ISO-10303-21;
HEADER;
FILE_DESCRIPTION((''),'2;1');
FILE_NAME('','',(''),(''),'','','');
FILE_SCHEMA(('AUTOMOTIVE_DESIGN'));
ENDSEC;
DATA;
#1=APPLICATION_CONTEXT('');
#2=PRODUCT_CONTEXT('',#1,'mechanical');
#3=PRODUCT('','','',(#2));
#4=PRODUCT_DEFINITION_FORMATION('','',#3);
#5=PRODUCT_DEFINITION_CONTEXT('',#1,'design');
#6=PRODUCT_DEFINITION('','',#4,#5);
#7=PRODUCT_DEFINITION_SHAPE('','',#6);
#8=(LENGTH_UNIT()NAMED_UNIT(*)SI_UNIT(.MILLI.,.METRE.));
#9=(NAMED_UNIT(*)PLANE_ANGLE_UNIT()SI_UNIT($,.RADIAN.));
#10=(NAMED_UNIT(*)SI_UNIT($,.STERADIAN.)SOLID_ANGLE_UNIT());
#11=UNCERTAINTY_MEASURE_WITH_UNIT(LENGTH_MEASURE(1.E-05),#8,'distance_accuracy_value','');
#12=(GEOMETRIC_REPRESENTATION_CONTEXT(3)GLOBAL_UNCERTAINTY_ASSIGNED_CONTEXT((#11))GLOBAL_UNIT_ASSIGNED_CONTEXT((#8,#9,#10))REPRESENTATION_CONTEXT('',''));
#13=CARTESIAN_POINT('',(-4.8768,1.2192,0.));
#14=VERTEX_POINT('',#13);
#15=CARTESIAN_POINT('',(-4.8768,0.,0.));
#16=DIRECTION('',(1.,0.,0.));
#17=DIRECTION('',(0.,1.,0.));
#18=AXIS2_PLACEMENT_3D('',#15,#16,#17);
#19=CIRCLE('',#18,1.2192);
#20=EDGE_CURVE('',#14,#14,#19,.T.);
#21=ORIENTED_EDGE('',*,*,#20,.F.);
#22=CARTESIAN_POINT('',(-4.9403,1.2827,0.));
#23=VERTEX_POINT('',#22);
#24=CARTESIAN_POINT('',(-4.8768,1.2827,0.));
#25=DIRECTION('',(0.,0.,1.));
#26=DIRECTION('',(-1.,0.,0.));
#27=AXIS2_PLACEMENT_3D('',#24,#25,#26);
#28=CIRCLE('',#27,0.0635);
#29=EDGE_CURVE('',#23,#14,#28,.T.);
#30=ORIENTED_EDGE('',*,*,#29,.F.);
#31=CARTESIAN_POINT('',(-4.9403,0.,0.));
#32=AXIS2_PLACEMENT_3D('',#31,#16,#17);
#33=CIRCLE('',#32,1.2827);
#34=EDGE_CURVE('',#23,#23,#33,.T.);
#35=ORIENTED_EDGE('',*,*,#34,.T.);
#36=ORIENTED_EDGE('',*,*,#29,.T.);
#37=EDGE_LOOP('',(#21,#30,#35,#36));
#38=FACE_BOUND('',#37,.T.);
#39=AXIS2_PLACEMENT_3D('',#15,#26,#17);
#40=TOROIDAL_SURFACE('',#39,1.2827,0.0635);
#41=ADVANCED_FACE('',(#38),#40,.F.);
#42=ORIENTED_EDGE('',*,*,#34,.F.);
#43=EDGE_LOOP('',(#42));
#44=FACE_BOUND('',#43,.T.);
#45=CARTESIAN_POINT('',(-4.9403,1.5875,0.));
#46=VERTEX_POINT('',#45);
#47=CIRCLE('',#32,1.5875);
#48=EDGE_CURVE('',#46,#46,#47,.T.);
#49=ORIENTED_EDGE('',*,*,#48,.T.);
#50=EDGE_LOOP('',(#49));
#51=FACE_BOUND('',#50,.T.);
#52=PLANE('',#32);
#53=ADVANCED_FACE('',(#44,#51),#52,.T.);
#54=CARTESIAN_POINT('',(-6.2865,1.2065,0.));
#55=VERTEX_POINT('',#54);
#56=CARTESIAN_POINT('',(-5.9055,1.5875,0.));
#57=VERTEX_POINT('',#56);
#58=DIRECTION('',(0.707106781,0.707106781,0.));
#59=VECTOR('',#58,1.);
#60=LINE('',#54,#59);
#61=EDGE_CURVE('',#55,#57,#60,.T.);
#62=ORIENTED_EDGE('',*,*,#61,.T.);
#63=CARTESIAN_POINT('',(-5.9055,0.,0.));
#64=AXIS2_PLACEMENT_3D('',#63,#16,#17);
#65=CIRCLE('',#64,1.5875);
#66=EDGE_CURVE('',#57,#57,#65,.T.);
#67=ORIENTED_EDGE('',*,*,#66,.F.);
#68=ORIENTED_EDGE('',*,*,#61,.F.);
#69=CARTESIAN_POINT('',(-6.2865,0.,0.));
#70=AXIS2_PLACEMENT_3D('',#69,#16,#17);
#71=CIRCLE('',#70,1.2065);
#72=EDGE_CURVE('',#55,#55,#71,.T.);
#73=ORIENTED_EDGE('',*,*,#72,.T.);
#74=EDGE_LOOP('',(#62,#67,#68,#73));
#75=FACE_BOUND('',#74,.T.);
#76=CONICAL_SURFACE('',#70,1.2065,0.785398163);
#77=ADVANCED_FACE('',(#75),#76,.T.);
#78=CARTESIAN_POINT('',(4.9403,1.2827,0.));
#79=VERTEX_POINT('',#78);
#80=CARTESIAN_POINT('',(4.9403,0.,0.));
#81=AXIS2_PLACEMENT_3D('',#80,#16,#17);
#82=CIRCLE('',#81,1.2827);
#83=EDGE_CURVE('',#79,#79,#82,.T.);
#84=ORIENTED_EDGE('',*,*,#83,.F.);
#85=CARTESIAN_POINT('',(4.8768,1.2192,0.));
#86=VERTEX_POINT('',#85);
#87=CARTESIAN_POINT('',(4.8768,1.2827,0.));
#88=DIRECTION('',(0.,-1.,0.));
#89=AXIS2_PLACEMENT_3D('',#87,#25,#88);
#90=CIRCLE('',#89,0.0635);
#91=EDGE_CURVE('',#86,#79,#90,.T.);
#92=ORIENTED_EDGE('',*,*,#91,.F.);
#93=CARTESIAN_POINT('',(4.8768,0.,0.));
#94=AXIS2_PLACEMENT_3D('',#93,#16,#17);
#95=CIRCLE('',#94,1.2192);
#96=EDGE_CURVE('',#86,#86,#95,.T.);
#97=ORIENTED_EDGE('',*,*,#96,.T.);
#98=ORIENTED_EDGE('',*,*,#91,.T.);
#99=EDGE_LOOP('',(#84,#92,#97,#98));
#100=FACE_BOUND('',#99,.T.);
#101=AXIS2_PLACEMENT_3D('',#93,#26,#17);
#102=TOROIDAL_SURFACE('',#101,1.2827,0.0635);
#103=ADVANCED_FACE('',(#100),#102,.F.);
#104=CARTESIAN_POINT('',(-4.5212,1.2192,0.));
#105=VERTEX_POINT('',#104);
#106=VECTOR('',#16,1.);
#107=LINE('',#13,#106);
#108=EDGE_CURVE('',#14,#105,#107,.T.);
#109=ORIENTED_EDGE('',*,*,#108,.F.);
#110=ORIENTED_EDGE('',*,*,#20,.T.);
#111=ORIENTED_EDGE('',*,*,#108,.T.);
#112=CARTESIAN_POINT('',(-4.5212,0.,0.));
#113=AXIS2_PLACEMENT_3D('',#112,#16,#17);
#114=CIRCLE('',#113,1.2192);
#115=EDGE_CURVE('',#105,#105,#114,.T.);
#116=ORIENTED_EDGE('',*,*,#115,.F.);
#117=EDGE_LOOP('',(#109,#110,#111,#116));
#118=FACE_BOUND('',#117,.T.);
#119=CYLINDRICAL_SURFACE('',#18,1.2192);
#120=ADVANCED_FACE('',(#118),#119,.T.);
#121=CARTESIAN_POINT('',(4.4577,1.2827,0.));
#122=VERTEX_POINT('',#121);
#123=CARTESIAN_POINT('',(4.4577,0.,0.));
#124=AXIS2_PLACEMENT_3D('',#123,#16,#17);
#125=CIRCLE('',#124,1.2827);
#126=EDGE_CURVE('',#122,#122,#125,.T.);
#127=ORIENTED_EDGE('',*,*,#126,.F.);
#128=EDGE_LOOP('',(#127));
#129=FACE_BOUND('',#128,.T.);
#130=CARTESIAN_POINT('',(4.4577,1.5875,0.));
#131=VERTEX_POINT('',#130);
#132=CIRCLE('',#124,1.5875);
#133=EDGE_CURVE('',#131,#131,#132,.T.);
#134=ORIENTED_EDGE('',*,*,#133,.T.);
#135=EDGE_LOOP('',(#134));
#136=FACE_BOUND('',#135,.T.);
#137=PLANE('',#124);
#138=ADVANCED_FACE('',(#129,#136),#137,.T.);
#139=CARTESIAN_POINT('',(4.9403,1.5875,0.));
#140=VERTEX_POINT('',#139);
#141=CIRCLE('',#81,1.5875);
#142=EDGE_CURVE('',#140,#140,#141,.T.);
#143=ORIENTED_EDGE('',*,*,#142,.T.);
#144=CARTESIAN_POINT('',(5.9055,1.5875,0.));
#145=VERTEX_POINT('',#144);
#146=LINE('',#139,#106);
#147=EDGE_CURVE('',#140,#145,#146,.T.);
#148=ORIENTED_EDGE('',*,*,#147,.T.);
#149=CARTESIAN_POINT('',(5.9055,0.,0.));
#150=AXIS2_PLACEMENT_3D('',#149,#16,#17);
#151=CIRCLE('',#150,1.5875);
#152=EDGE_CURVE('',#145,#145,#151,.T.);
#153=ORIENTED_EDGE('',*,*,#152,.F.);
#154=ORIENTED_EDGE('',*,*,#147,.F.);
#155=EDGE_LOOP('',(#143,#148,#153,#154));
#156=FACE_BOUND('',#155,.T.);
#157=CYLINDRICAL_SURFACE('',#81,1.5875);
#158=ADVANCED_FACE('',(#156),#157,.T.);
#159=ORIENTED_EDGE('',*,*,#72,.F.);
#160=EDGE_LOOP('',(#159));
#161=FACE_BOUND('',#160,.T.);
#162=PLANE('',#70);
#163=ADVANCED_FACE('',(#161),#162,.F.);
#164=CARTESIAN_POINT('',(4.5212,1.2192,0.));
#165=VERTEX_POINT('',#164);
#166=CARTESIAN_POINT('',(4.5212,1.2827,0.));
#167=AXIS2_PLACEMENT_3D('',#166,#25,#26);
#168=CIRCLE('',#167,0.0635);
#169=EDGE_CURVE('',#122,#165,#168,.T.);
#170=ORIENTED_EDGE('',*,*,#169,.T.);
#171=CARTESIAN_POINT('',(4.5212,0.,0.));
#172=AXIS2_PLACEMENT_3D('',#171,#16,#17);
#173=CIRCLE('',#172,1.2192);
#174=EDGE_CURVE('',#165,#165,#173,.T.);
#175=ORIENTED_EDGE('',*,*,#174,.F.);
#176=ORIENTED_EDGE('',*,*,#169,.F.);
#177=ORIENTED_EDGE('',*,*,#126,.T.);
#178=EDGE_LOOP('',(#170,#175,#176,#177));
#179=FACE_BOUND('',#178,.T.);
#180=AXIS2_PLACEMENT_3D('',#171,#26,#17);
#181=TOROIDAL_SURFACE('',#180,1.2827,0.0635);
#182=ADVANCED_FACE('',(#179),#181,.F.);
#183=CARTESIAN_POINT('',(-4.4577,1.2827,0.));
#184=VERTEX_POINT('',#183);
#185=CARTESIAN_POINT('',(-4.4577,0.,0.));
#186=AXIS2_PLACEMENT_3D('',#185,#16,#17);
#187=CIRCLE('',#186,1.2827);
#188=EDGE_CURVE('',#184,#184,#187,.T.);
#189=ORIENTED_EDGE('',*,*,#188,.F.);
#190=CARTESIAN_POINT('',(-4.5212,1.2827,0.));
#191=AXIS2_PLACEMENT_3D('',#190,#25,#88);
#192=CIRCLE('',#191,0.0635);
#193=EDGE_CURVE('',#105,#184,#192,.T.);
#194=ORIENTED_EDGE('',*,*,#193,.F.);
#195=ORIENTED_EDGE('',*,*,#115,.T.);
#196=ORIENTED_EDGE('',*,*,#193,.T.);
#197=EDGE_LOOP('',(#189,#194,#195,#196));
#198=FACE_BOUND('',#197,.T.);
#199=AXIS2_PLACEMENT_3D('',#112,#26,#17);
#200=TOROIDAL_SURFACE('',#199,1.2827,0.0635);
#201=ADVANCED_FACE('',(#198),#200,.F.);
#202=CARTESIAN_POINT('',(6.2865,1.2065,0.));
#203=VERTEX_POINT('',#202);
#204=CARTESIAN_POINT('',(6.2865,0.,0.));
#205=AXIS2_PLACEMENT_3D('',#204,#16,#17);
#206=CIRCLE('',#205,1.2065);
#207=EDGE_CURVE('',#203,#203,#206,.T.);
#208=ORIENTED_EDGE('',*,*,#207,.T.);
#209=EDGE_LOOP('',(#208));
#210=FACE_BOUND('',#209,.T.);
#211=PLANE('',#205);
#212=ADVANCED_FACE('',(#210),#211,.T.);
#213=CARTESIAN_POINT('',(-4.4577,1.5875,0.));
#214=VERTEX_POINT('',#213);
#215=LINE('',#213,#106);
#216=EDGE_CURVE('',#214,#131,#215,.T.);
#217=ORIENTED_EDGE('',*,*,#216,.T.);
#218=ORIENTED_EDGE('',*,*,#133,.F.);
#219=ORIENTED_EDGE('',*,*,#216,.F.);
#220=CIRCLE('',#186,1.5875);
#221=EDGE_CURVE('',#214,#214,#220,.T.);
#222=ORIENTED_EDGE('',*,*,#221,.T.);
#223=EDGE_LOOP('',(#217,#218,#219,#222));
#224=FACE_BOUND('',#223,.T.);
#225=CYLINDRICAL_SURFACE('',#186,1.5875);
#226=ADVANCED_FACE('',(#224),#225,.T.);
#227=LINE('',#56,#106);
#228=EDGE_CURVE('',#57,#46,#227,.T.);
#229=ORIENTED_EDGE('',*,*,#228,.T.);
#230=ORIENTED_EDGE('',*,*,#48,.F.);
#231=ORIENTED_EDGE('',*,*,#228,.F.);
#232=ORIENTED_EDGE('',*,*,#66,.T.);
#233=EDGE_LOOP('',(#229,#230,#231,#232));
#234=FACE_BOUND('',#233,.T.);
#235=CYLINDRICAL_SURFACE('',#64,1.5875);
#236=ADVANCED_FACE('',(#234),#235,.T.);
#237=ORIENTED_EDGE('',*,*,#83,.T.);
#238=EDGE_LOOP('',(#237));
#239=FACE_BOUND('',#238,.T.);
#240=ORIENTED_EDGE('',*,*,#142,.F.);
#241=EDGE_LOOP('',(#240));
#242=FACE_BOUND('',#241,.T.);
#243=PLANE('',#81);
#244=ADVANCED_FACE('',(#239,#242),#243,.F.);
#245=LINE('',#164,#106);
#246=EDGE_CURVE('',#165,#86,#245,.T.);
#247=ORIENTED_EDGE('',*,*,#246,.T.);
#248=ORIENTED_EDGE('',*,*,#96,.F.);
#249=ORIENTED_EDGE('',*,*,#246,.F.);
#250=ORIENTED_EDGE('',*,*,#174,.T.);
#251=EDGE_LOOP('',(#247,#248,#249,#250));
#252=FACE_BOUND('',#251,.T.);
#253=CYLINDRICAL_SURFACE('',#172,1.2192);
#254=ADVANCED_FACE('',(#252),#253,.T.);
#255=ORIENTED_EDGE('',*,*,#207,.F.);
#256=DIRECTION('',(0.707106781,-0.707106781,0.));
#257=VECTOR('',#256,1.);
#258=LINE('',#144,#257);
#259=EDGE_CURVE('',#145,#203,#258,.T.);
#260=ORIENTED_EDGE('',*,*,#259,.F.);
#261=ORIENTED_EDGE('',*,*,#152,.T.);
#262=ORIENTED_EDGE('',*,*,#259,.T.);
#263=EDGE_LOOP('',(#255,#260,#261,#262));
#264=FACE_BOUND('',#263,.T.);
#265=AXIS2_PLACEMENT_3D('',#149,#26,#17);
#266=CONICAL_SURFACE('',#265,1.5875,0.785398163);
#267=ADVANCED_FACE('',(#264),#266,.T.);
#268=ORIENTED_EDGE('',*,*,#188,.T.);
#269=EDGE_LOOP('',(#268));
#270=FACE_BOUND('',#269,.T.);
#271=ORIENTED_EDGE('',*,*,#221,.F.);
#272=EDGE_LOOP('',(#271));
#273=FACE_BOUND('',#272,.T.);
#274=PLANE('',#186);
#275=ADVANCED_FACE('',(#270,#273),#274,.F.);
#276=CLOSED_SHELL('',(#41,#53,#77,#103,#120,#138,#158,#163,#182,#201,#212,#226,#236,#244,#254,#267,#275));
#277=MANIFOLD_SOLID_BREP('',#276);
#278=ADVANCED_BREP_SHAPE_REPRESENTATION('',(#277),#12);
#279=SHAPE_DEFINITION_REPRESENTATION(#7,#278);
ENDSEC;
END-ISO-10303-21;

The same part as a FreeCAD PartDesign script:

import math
import FreeCAD as App
import Part
import Sketcher

V = App.Vector
Q = App.Units.Quantity

doc = App.newDocument("Part")
body = doc.addObject("PartDesign::Body", "Body")

# Sketch on XY plane
sketch1 = body.newObject("Sketcher::SketchObject", "Sketch")
sketch1.AttachmentSupport = (doc.getObject("XY_Plane"), [""])
sketch1.MapMode = "FlatFace"
sketch1.addGeometry(Part.LineSegment(V(-6.2865, 0, 0), V(6.2865, 0, 0)), False)
sketch1.addGeometry(Part.LineSegment(V(6.2865, 0, 0), V(6.2865, 1.2065, 0)), False)
sketch1.addGeometry(Part.LineSegment(V(6.2865, 1.2065, 0), V(5.9055, 1.5875, 0)), False)
sketch1.addGeometry(Part.LineSegment(V(5.9055, 1.5875, 0), V(4.9403, 1.5875, 0)), False)
sketch1.addGeometry(Part.LineSegment(V(4.9403, 1.5875, 0), V(4.9403, 1.2827, 0)), False)
sketch1.addGeometry(Part.ArcOfCircle(Part.Circle(V(4.8768, 1.2827, 0), V(0, 0, 1), 0.0635), math.radians(-90), math.radians(0)), False)
sketch1.addGeometry(Part.LineSegment(V(4.8768, 1.2192, 0), V(4.5212, 1.2192, 0)), False)
sketch1.addGeometry(Part.ArcOfCircle(Part.Circle(V(4.5212, 1.2827, 0), V(0, 0, 1), 0.0635), math.radians(180), math.radians(270)), False)
sketch1.addGeometry(Part.LineSegment(V(4.4577, 1.2827, 0), V(4.4577, 1.5875, 0)), False)
sketch1.addGeometry(Part.LineSegment(V(4.4577, 1.5875, 0), V(-4.4577, 1.5875, 0)), False)
sketch1.addGeometry(Part.LineSegment(V(-4.4577, 1.5875, 0), V(-4.4577, 1.2827, 0)), False)
sketch1.addGeometry(Part.ArcOfCircle(Part.Circle(V(-4.5212, 1.2827, 0), V(0, 0, 1), 0.0635), math.radians(-90), math.radians(0)), False)
sketch1.addGeometry(Part.LineSegment(V(-4.5212, 1.2192, 0), V(-4.8768, 1.2192, 0)), False)
sketch1.addGeometry(Part.ArcOfCircle(Part.Circle(V(-4.8768, 1.2827, 0), V(0, 0, 1), 0.0635), math.radians(180), math.radians(270)), False)
sketch1.addGeometry(Part.LineSegment(V(-4.9403, 1.2827, 0), V(-4.9403, 1.5875, 0)), False)
sketch1.addGeometry(Part.LineSegment(V(-4.9403, 1.5875, 0), V(-5.9055, 1.5875, 0)), False)
sketch1.addGeometry(Part.LineSegment(V(-5.9055, 1.5875, 0), V(-6.2865, 1.2065, 0)), False)
sketch1.addGeometry(Part.LineSegment(V(-6.2865, 1.2065, 0), V(-6.2865, 0, 0)), False)
sketch1.addConstraint(Sketcher.Constraint("Coincident", 0, 2, 1, 1))
sketch1.addConstraint(Sketcher.Constraint("Coincident", 1, 2, 2, 1))
sketch1.addConstraint(Sketcher.Constraint("Coincident", 2, 2, 3, 1))
sketch1.addConstraint(Sketcher.Constraint("Coincident", 3, 2, 4, 1))
sketch1.addConstraint(Sketcher.Constraint("Tangent", 4, 2, 5, 2))
sketch1.addConstraint(Sketcher.Constraint("Tangent", 5, 1, 6, 1))
sketch1.addConstraint(Sketcher.Constraint("Tangent", 6, 2, 7, 2))
sketch1.addConstraint(Sketcher.Constraint("Tangent", 7, 1, 8, 1))
sketch1.addConstraint(Sketcher.Constraint("Coincident", 8, 2, 9, 1))
sketch1.addConstraint(Sketcher.Constraint("Coincident", 9, 2, 10, 1))
sketch1.addConstraint(Sketcher.Constraint("Tangent", 10, 2, 11, 2))
sketch1.addConstraint(Sketcher.Constraint("Tangent", 11, 1, 12, 1))
sketch1.addConstraint(Sketcher.Constraint("Tangent", 12, 2, 13, 2))
sketch1.addConstraint(Sketcher.Constraint("Tangent", 13, 1, 14, 1))
sketch1.addConstraint(Sketcher.Constraint("Coincident", 14, 2, 15, 1))
sketch1.addConstraint(Sketcher.Constraint("Coincident", 15, 2, 16, 1))
sketch1.addConstraint(Sketcher.Constraint("Coincident", 16, 2, 17, 1))
sketch1.addConstraint(Sketcher.Constraint("Coincident", 17, 2, 0, 1))
sketch1.addConstraint(Sketcher.Constraint("Horizontal", 0))
sketch1.addConstraint(Sketcher.Constraint("Vertical", 1))
sketch1.addConstraint(Sketcher.Constraint("Horizontal", 3))
sketch1.addConstraint(Sketcher.Constraint("Vertical", 4))
sketch1.addConstraint(Sketcher.Constraint("Horizontal", 6))
sketch1.addConstraint(Sketcher.Constraint("Vertical", 8))
sketch1.addConstraint(Sketcher.Constraint("Horizontal", 9))
sketch1.addConstraint(Sketcher.Constraint("Vertical", 10))
sketch1.addConstraint(Sketcher.Constraint("Horizontal", 12))
sketch1.addConstraint(Sketcher.Constraint("Vertical", 14))
sketch1.addConstraint(Sketcher.Constraint("Horizontal", 15))
sketch1.addConstraint(Sketcher.Constraint("Vertical", 17))
sketch1.addConstraint(Sketcher.Constraint("Equal", 5, 7))
sketch1.addConstraint(Sketcher.Constraint("Equal", 7, 11))
sketch1.addConstraint(Sketcher.Constraint("Equal", 11, 13))
sketch1.addConstraint(Sketcher.Constraint("Symmetric", 0, 2, 17, 2, -1, 1))
sketch1.addConstraint(Sketcher.Constraint("Symmetric", 7, 3, 11, 3, -2))
sketch1.addConstraint(Sketcher.Constraint("Symmetric", 3, 2, 14, 2, -2))
sketch1.addConstraint(Sketcher.Constraint("Perpendicular", 2, 16))
sketch1.addConstraint(Sketcher.Constraint("Horizontal", 3, 2, 8, 2))
sketch1.addConstraint(Sketcher.Constraint("Horizontal", 1, 2, 16, 2))
sketch1.addConstraint(Sketcher.Constraint("Equal", 3, 15))
sketch1.addConstraint(Sketcher.Constraint("Radius", 5, Q("0.0025 in")))
sketch1.addConstraint(Sketcher.Constraint("DistanceX", 0, 1, 0, 2, Q("0.495 in")))
sketch1.addConstraint(Sketcher.Constraint("DistanceX", 3, 2, 3, 1, Q("0.038 in")))
sketch1.addConstraint(Sketcher.Constraint("DistanceX", 6, 2, 6, 1, Q("0.014 in")))
sketch1.addConstraint(Sketcher.Constraint("DistanceX", 9, 2, 9, 1, Q("0.351 in")))
sketch1.addConstraint(Sketcher.Constraint("DistanceY", 4, 2, 4, 1, Q("0.012 in")))
sketch1.addConstraint(Sketcher.Constraint("DistanceY", 1, 1, 1, 2, Q("0.0475 in")))
revolution = body.newObject("PartDesign::Revolution", "Revolution")
revolution.Profile = sketch1
revolution.ReferenceAxis = (sketch1, ["H_Axis"])
revolution.Angle = 360

doc.recompute()
